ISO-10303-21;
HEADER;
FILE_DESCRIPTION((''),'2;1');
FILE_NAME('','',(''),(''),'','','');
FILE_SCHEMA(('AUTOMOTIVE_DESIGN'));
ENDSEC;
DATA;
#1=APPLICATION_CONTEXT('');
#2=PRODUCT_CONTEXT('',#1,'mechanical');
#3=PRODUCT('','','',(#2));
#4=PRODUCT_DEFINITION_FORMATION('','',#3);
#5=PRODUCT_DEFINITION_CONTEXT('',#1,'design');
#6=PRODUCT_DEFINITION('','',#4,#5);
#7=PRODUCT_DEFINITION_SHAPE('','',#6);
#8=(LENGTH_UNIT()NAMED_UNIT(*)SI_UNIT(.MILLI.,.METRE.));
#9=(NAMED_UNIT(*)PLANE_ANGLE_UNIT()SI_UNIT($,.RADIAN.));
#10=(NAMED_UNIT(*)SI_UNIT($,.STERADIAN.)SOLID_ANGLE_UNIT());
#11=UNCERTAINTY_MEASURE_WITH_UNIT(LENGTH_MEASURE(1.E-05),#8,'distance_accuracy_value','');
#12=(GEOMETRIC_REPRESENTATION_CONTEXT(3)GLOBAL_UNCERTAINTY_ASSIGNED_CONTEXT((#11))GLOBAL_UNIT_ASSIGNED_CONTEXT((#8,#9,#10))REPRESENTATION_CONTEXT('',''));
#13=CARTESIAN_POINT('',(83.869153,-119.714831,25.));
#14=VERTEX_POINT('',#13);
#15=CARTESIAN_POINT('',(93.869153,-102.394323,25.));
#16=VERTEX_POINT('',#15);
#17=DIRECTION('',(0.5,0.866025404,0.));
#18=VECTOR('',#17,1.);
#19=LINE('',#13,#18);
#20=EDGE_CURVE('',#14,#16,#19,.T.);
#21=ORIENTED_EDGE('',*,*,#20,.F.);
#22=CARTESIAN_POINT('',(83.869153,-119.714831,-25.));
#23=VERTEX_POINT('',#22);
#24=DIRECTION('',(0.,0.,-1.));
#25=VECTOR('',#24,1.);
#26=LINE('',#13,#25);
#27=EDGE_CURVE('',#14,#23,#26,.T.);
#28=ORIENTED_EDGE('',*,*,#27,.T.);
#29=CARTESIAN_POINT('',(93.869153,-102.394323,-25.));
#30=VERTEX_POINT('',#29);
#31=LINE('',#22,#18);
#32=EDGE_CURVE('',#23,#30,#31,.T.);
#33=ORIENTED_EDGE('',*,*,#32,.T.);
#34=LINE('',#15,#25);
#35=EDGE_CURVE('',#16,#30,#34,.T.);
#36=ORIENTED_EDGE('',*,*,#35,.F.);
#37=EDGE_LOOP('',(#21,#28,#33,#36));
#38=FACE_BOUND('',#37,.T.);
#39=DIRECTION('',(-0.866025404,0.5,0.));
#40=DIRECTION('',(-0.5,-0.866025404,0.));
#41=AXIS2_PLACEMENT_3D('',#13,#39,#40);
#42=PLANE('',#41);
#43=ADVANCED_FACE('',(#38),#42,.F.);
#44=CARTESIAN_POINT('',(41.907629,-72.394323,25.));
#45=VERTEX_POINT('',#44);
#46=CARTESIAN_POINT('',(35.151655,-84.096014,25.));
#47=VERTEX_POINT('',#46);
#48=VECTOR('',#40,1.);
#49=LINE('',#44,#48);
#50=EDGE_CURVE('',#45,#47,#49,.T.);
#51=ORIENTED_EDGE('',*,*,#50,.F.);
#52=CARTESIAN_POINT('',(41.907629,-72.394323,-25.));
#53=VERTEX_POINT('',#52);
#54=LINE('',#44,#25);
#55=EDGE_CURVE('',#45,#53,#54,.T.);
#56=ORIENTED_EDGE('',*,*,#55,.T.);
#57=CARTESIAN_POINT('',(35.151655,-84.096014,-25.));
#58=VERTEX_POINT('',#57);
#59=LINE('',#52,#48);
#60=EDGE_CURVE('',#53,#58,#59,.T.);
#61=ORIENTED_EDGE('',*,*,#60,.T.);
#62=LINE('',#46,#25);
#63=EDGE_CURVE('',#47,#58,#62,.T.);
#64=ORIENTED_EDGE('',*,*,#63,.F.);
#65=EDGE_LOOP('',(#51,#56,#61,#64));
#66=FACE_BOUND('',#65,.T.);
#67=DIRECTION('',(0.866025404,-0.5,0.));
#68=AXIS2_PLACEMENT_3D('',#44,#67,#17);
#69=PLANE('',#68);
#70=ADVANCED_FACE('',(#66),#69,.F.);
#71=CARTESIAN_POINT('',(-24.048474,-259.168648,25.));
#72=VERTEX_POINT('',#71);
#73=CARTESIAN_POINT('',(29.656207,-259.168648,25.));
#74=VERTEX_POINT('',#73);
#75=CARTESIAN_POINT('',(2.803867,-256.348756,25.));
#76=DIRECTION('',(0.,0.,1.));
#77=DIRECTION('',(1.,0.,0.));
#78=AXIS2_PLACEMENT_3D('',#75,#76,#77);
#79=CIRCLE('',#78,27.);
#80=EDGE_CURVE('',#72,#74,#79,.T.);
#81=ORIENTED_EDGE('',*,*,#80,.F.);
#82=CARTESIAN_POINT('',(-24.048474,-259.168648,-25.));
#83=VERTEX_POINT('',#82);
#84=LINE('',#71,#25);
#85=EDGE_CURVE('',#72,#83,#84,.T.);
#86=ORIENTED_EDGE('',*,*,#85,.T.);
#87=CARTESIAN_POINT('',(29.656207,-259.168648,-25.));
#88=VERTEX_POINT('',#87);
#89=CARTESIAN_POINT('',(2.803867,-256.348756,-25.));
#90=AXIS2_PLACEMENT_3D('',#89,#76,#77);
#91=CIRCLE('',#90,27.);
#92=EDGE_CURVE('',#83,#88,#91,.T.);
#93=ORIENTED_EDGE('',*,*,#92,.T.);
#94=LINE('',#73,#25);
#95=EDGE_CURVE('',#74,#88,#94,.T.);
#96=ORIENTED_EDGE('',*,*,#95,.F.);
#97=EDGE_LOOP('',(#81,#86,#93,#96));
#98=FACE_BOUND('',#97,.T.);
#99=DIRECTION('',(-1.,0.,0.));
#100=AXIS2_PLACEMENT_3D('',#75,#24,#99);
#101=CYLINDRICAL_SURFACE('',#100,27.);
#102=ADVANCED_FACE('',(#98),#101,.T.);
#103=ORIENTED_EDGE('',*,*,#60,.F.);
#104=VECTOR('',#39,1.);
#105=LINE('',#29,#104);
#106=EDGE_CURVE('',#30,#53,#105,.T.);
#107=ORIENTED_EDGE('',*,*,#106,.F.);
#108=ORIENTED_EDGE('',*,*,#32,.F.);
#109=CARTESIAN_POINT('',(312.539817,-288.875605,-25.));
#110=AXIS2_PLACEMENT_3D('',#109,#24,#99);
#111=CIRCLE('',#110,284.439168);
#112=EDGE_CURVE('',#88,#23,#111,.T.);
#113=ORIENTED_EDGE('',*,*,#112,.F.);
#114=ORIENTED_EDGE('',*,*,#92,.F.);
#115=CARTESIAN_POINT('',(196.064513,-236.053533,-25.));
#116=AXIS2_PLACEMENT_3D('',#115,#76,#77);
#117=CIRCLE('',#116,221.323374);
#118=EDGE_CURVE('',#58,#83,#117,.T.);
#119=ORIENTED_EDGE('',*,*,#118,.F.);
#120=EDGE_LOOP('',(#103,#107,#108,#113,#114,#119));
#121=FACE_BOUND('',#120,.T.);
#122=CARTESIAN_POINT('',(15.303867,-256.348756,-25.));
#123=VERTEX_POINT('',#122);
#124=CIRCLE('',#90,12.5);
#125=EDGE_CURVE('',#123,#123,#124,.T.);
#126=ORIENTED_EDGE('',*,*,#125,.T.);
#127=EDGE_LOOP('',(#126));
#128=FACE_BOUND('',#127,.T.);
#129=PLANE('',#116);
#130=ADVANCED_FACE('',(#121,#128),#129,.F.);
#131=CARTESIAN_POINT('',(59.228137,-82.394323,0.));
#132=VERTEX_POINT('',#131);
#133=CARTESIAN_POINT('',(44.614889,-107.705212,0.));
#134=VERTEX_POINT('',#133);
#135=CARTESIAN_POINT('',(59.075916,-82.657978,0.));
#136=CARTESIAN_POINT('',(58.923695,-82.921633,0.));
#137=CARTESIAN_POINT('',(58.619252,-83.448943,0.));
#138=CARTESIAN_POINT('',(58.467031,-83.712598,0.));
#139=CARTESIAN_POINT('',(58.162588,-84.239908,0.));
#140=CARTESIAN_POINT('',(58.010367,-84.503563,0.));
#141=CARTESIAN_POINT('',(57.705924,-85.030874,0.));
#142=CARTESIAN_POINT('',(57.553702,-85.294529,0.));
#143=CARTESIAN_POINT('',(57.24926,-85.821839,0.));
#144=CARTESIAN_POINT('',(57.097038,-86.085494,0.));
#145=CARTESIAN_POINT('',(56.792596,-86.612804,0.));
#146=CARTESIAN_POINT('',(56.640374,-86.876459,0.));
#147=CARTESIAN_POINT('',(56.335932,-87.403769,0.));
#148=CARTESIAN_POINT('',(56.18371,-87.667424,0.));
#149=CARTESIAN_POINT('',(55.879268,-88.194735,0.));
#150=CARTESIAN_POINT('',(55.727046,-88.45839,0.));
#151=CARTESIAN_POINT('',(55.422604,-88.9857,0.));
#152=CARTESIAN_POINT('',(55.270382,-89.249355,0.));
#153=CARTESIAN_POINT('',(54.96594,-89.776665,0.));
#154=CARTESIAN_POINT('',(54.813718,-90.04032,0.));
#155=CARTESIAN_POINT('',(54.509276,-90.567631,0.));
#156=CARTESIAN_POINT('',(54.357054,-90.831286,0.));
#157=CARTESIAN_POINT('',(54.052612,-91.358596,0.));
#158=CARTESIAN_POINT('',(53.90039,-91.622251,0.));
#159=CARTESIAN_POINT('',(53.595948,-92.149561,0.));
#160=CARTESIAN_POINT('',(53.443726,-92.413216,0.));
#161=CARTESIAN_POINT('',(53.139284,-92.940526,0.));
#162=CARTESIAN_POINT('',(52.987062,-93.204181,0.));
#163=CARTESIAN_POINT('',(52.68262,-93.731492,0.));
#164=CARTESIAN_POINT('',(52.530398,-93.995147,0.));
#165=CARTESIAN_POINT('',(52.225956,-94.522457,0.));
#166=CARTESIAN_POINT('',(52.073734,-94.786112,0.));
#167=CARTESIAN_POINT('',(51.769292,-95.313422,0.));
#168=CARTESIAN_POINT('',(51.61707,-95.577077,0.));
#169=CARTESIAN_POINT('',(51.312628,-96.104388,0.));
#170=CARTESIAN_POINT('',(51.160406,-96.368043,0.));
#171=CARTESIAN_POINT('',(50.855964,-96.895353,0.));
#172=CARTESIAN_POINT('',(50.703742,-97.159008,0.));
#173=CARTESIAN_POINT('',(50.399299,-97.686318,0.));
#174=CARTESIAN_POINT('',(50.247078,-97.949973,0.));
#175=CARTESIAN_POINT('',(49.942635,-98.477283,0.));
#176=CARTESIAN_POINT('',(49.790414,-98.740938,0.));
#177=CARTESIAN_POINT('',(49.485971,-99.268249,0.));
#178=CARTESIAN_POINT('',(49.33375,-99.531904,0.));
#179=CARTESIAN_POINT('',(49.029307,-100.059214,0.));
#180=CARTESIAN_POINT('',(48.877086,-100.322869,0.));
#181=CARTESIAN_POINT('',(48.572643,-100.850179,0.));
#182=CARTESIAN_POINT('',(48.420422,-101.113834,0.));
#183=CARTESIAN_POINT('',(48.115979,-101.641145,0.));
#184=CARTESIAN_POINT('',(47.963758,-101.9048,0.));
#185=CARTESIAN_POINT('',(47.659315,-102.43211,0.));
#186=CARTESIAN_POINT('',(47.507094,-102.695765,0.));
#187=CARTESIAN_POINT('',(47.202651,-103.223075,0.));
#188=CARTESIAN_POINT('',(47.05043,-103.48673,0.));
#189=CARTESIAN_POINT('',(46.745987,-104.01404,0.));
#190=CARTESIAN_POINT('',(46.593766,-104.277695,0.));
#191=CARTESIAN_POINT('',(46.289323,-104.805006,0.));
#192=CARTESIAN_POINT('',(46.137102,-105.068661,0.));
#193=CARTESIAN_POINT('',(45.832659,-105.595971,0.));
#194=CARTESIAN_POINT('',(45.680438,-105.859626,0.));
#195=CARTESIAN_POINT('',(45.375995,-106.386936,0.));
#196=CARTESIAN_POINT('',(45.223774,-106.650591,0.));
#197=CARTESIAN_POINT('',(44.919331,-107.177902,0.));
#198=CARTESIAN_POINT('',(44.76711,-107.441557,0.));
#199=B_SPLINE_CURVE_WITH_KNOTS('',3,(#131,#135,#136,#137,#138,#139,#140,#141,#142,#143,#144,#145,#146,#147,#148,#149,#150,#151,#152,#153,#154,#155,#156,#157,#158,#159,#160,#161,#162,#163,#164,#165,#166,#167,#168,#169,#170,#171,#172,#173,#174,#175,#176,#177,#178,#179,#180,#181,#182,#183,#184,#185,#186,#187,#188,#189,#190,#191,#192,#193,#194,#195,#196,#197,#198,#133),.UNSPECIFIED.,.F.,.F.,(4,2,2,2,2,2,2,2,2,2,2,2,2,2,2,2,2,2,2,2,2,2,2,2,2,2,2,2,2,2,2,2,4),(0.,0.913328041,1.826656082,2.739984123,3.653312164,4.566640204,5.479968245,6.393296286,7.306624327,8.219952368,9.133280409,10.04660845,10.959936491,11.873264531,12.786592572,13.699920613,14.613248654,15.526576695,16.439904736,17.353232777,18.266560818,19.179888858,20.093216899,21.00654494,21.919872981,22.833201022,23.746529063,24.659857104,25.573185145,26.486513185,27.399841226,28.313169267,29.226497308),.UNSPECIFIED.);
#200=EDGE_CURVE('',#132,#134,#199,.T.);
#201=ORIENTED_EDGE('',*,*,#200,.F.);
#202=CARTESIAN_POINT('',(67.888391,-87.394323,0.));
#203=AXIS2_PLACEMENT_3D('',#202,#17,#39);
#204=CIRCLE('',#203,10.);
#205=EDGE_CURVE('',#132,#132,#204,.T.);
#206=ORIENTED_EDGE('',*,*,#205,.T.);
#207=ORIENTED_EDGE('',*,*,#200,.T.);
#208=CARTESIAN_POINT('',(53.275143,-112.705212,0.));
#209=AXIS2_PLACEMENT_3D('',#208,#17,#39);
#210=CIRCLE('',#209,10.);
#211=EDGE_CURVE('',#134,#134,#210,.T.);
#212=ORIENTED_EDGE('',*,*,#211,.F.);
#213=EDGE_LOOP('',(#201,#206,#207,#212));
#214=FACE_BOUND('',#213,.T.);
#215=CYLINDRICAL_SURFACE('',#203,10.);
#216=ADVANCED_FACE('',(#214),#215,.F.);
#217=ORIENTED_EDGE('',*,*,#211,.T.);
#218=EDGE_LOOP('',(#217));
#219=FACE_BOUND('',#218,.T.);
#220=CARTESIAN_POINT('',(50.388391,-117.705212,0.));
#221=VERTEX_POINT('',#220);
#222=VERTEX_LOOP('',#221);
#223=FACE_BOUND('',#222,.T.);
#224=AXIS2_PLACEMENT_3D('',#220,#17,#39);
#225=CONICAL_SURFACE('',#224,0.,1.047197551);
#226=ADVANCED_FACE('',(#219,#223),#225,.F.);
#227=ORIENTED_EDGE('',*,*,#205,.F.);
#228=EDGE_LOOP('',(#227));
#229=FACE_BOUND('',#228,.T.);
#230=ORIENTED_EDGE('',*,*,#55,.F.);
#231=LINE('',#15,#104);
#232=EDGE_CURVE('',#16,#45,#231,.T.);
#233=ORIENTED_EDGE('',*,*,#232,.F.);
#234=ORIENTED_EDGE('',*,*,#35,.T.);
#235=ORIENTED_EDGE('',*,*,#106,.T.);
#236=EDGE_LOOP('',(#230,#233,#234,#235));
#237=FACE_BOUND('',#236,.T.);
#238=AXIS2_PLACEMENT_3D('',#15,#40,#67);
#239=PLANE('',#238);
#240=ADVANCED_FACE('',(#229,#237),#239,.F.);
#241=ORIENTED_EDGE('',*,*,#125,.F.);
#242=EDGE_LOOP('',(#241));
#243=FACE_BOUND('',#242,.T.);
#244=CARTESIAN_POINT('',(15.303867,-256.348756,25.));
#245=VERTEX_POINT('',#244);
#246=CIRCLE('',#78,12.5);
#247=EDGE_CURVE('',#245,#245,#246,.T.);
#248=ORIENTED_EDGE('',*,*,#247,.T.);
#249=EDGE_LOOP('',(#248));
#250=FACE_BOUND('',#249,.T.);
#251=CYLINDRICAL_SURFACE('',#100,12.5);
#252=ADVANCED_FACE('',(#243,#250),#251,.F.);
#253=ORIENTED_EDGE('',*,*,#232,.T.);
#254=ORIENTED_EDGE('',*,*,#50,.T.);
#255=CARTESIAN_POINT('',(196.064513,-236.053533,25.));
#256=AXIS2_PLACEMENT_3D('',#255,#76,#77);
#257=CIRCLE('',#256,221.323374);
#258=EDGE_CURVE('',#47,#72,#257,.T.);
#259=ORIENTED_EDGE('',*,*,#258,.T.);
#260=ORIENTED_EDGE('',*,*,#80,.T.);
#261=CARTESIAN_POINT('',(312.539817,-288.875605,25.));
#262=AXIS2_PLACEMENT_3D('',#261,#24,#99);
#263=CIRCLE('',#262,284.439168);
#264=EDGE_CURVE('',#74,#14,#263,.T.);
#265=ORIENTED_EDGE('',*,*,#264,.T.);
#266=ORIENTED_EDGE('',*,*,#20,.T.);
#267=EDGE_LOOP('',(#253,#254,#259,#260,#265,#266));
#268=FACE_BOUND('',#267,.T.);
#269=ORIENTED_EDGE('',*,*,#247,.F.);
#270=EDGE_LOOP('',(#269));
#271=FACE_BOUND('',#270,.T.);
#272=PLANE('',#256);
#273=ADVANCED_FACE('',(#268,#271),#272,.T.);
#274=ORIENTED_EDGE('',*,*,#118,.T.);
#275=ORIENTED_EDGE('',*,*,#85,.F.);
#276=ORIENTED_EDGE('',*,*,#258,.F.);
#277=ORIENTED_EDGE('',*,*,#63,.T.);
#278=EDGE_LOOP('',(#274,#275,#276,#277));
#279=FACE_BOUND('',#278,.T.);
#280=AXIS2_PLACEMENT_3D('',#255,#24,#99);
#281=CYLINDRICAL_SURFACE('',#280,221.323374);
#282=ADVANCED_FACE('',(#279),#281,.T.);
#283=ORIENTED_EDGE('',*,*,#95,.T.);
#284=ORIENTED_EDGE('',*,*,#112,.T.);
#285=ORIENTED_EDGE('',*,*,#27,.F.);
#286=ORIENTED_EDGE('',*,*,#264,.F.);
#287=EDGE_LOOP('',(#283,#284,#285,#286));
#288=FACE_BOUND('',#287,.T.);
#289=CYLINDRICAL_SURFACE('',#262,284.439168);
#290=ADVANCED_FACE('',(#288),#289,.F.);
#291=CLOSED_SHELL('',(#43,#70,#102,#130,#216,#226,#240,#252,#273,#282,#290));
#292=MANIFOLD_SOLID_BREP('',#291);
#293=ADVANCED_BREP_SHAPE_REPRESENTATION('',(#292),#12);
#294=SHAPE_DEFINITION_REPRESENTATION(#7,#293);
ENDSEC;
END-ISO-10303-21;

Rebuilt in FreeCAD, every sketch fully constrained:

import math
import FreeCAD as App
import Part
import Sketcher
Q = App.Units.Quantity

doc = App.newDocument("Part")
params = doc.addObject("Spreadsheet::Sheet", "Params")
for row, (alias, value) in enumerate([
    ("sketch1_diameter", "25 mm"),
    ("sketch1_radius", "27 mm"),
    ("sketch1_length", "20 mm"),
    ("sketch1_length2", "60 mm"),
    ("pad1_length", "50 mm"),
    ("sketch2_length", "35 mm"),
    ("sketch2_length2", "10 mm"),
    ("groove_angle", "360 deg"),
], start=1):
    params.set(f"A{row}", alias)
    params.set(f"B{row}", "=" + value)
    params.setAlias(f"B{row}", alias)

body = doc.addObject("PartDesign::Body", "Body")

sketch1 = doc.addObject("Sketcher::SketchObject", "Sketch")
body.addObject(sketch1)
sketch1.AttachmentSupport = (doc.XY_Plane, [""])
sketch1.MapMode = "FlatFace"
sketch1.addGeometry([
    Part.LineSegment(App.Vector(84, -120, 0), App.Vector(94, -102, 0)),
    Part.LineSegment(App.Vector(94, -102, 0), App.Vector(42, -72, 0)),
    Part.LineSegment(App.Vector(42, -72, 0), App.Vector(35, -84, 0)),
    Part.ArcOfCircle(Part.Circle(App.Vector(196, -236, 0), App.Vector(0, 0, 1), 221), math.radians(137), math.radians(186)),
    Part.ArcOfCircle(Part.Circle(App.Vector(3, -256, 0), App.Vector(0, 0, 1), 27), math.radians(-174), math.radians(-6)),
    Part.ArcOfCircle(Part.Circle(App.Vector(313, -289, 0), App.Vector(0, 0, 1), 284), math.radians(144), math.radians(174)),
    Part.Circle(App.Vector(3, -256, 0), App.Vector(0, 0, 1), 12),
], False)
sketch1.addConstraint([
    Sketcher.Constraint("Coincident", 0, 2, 1, 1),
    Sketcher.Constraint("Coincident", 1, 2, 2, 1),
    Sketcher.Constraint("Coincident", 2, 2, 3, 1),
    Sketcher.Constraint("Tangent", 3, 2, 4, 1),
    Sketcher.Constraint("Tangent", 4, 2, 5, 2),
    Sketcher.Constraint("Coincident", 5, 1, 0, 1),
    Sketcher.Constraint("Coincident", 6, 3, 4, 3),
    Sketcher.Constraint("Perpendicular", 0, 1),
    Sketcher.Constraint("Perpendicular", 1, 2),
    Sketcher.Constraint("Diameter", 6, Q("25 mm")),
    Sketcher.Constraint("Radius", 4, Q("27 mm")),
    Sketcher.Constraint("Angle", 0, Q("60 deg")),
    Sketcher.Constraint("Distance", 0, Q("20 mm")),
    Sketcher.Constraint("Distance", 1, Q("60 mm")),
    Sketcher.Constraint("Radius", 3, Q("221.323374 mm")),
    Sketcher.Constraint("Radius", 5, Q("284.439168 mm")),
    Sketcher.Constraint("DistanceX", 2, 2, 0, 2, Q("58.717499 mm")),
    Sketcher.Constraint("DistanceX", -1, 1, 1, 2, Q("41.907629 mm")),
    Sketcher.Constraint("DistanceY", 5, 3, 3, 3, Q("52.822072 mm")),
    Sketcher.Constraint("DistanceX", 4, 3, 5, 3, Q("309.735951 mm")),
    Sketcher.Constraint("DistanceY", 3, 3, -1, 1, Q("236.053533 mm")),
])
sketch1.setExpression("Constraints[9]", "Params.sketch1_diameter")
sketch1.setExpression("Constraints[10]", "Params.sketch1_radius")
sketch1.setExpression("Constraints[12]", "Params.sketch1_length")
sketch1.setExpression("Constraints[13]", "Params.sketch1_length2")
pad1 = doc.addObject("PartDesign::Pad", "Pad")
body.addObject(pad1)
pad1.Profile = sketch1
pad1.setExpression("Length", "Params.pad1_length")
pad1.Midplane = True

sketch2 = doc.addObject("Sketcher::SketchObject", "Sketch001")
body.addObject(sketch2)
sketch2.AttachmentSupport = (doc.XY_Plane, [""])
sketch2.MapMode = "FlatFace"
sketch2.addGeometry([
    Part.LineSegment(App.Vector(50, -118, 0), App.Vector(68, -87, 0)),
    Part.LineSegment(App.Vector(68, -87, 0), App.Vector(59, -82, 0)),
    Part.LineSegment(App.Vector(59, -82, 0), App.Vector(45, -108, 0)),
    Part.LineSegment(App.Vector(45, -108, 0), App.Vector(50, -118, 0)),
], False)
sketch2.addGeometry(Part.LineSegment(App.Vector(68, -87, 0), App.Vector(50, -118, 0)), True)
sketch2.addConstraint([
    Sketcher.Constraint("Coincident", 0, 2, 1, 1),
    Sketcher.Constraint("Coincident", 1, 2, 2, 1),
    Sketcher.Constraint("Coincident", 2, 2, 3, 1),
    Sketcher.Constraint("Coincident", 3, 2, 0, 1),
    Sketcher.Constraint("Coincident", 4, 1, 0, 2),
    Sketcher.Constraint("Coincident", 4, 2, 3, 2),
    Sketcher.Constraint("Perpendicular", 0, 1),
    Sketcher.Constraint("Perpendicular", 1, 2),
    Sketcher.Constraint("Angle", 0, Q("60 deg")),
    Sketcher.Constraint("Angle", 3, Q("-60 deg")),
    Sketcher.Constraint("Distance", 0, Q("35 mm")),
    Sketcher.Constraint("Distance", 1, Q("10 mm")),
    Sketcher.Constraint("DistanceX", -1, 1, 0, 2, Q("67.888391 mm")),
    Sketcher.Constraint("DistanceY", 2, 2, -1, 1, Q("107.705212 mm")),
])
sketch2.setExpression("Constraints[10]", "Params.sketch2_length")
sketch2.setExpression("Constraints[11]", "Params.sketch2_length2")
groove = doc.addObject("PartDesign::Groove", "Groove")
body.addObject(groove)
groove.Profile = sketch2
groove.ReferenceAxis = (sketch2, ["Axis0"])
groove.setExpression("Angle", "Params.groove_angle")

doc.recompute()
